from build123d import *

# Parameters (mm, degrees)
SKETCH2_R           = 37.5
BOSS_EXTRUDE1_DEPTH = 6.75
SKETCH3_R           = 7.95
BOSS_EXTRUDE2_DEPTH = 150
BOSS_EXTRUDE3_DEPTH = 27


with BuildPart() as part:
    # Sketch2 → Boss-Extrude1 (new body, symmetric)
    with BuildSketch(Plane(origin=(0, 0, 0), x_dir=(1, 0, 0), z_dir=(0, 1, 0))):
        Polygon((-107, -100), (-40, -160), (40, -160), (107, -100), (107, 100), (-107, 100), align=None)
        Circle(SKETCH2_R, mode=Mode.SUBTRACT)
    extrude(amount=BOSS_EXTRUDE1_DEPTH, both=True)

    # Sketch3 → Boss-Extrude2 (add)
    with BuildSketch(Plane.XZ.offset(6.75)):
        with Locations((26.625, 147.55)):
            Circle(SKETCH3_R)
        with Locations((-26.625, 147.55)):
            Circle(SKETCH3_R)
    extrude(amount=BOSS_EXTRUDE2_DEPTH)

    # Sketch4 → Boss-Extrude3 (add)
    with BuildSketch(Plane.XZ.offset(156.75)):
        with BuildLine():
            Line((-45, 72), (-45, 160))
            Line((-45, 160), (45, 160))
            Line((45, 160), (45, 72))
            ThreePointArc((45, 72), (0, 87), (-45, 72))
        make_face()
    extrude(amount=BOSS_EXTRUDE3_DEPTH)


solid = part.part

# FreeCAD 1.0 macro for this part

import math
import FreeCAD as App
import Part
import Sketcher
from FreeCAD import Vector

doc = App.newDocument("Part")
body = doc.addObject("PartDesign::Body", "Body")

# Sketch on XZ plane
sketch1 = doc.addObject("Sketcher::SketchObject", "Sketch")
body.addObject(sketch1)
sketch1.AttachmentSupport = (doc.XZ_Plane, [""])
sketch1.MapMode = "FlatFace"
sketch1.addGeometry([
    Part.LineSegment(Vector(-107, 100, 0), Vector(-40, 160, 0)),  # 0
    Part.LineSegment(Vector(-40, 160, 0), Vector(40, 160, 0)),  # 1
    Part.LineSegment(Vector(40, 160, 0), Vector(107, 100, 0)),  # 2
    Part.LineSegment(Vector(107, 100, 0), Vector(107, -100, 0)),  # 3
    Part.LineSegment(Vector(107, -100, 0), Vector(-107, -100, 0)),  # 4
    Part.LineSegment(Vector(-107, -100, 0), Vector(-107, 100, 0)),  # 5
    Part.Circle(Vector(0, 0, 0), Vector(0, 0, 1), 38),  # 6
], False)
sketch1.addConstraint([
    Sketcher.Constraint("Coincident", 0, 2, 1, 1),
    Sketcher.Constraint("Coincident", 1, 2, 2, 1),
    Sketcher.Constraint("Coincident", 2, 2, 3, 1),
    Sketcher.Constraint("Coincident", 3, 2, 4, 1),
    Sketcher.Constraint("Coincident", 4, 2, 5, 1),
    Sketcher.Constraint("Coincident", 5, 2, 0, 1),
    Sketcher.Constraint("Horizontal", 1),
    Sketcher.Constraint("Vertical", 3),
    Sketcher.Constraint("Horizontal", 4),
    Sketcher.Constraint("Vertical", 5),
    Sketcher.Constraint("Coincident", 6, 3, -1, 1),
    Sketcher.Constraint("Symmetric", 2, 2, 4, 2, -1, 1),
    Sketcher.Constraint("Horizontal", 2, 2, 5, 2),
    Sketcher.Constraint("Equal", 0, 2),
    Sketcher.Constraint("Diameter", 6, 75.0),
    Sketcher.Constraint("DistanceX", 1, 1, 1, 2, 80.0),
    Sketcher.Constraint("DistanceX", 4, 2, 4, 1, 214.0),
    Sketcher.Constraint("DistanceY", 3, 2, 3, 1, 200.0),
    Sketcher.Constraint("DistanceY", -1, 1, 0, 2, 160.0),
])
pad1 = doc.addObject("PartDesign::Pad", "Pad")
body.addObject(pad1)
pad1.Profile = sketch1
pad1.Length = 13.5
pad1.Midplane = True

# Sketch on XZ plane
sketch2 = doc.addObject("Sketcher::SketchObject", "Sketch001")
body.addObject(sketch2)
sketch2.AttachmentSupport = (doc.XZ_Plane, [""])
sketch2.MapMode = "FlatFace"
sketch2.AttachmentOffset = App.Placement(Vector(0, 0, 6.75), App.Rotation())
sketch2.addGeometry([
    Part.Circle(Vector(27, 148, 0), Vector(0, 0, 1), 8),
    Part.Circle(Vector(-27, 148, 0), Vector(0, 0, 1), 8),
], False)
sketch2.addConstraint([
    Sketcher.Constraint("Equal", 0, 1),
    Sketcher.Constraint("Symmetric", 0, 3, 1, 3, -2),
    Sketcher.Constraint("Diameter", 0, 15.9),
    Sketcher.Constraint("DistanceY", -1, 1, 0, 3, 147.55),
    Sketcher.Constraint("DistanceX", 1, 3, 0, 3, 53.25),
])
pad2 = doc.addObject("PartDesign::Pad", "Pad001")
body.addObject(pad2)
pad2.Profile = sketch2
pad2.Length = 150

# Sketch on XZ plane
sketch3 = doc.addObject("Sketcher::SketchObject", "Sketch002")
body.addObject(sketch3)
sketch3.AttachmentSupport = (doc.XZ_Plane, [""])
sketch3.MapMode = "FlatFace"
sketch3.AttachmentOffset = App.Placement(Vector(0, 0, 156.75), App.Rotation())
sketch3.addGeometry([
    Part.LineSegment(Vector(-45, 160, 0), Vector(-45, 72, 0)),
    Part.ArcOfCircle(Part.Circle(Vector(0, 12, 0), Vector(0, 0, 1), 75), math.radians(53), math.radians(127)),
    Part.LineSegment(Vector(45, 72, 0), Vector(45, 160, 0)),
    Part.LineSegment(Vector(45, 160, 0), Vector(-45, 160, 0)),
], False)
sketch3.addConstraint([
    Sketcher.Constraint("Coincident", 0, 2, 1, 2),
    Sketcher.Constraint("Coincident", 1, 1, 2, 1),
    Sketcher.Constraint("Coincident", 2, 2, 3, 1),
    Sketcher.Constraint("Coincident", 3, 2, 0, 1),
    Sketcher.Constraint("Vertical", 0),
    Sketcher.Constraint("Vertical", 2),
    Sketcher.Constraint("Horizontal", 3),
    Sketcher.Constraint("Symmetric", 0, 2, 1, 1, -2),
    Sketcher.Constraint("Radius", 1, 75.0),
    Sketcher.Constraint("DistanceX", 3, 2, 3, 1, 90.0),
    Sketcher.Constraint("DistanceY", 0, 2, 0, 1, 88.0),
    Sketcher.Constraint("DistanceY", -1, 1, 1, 3, 12.0),
])
pad3 = doc.addObject("PartDesign::Pad", "Pad002")
body.addObject(pad3)
pad3.Profile = sketch3
pad3.Length = 27

doc.recompute()
